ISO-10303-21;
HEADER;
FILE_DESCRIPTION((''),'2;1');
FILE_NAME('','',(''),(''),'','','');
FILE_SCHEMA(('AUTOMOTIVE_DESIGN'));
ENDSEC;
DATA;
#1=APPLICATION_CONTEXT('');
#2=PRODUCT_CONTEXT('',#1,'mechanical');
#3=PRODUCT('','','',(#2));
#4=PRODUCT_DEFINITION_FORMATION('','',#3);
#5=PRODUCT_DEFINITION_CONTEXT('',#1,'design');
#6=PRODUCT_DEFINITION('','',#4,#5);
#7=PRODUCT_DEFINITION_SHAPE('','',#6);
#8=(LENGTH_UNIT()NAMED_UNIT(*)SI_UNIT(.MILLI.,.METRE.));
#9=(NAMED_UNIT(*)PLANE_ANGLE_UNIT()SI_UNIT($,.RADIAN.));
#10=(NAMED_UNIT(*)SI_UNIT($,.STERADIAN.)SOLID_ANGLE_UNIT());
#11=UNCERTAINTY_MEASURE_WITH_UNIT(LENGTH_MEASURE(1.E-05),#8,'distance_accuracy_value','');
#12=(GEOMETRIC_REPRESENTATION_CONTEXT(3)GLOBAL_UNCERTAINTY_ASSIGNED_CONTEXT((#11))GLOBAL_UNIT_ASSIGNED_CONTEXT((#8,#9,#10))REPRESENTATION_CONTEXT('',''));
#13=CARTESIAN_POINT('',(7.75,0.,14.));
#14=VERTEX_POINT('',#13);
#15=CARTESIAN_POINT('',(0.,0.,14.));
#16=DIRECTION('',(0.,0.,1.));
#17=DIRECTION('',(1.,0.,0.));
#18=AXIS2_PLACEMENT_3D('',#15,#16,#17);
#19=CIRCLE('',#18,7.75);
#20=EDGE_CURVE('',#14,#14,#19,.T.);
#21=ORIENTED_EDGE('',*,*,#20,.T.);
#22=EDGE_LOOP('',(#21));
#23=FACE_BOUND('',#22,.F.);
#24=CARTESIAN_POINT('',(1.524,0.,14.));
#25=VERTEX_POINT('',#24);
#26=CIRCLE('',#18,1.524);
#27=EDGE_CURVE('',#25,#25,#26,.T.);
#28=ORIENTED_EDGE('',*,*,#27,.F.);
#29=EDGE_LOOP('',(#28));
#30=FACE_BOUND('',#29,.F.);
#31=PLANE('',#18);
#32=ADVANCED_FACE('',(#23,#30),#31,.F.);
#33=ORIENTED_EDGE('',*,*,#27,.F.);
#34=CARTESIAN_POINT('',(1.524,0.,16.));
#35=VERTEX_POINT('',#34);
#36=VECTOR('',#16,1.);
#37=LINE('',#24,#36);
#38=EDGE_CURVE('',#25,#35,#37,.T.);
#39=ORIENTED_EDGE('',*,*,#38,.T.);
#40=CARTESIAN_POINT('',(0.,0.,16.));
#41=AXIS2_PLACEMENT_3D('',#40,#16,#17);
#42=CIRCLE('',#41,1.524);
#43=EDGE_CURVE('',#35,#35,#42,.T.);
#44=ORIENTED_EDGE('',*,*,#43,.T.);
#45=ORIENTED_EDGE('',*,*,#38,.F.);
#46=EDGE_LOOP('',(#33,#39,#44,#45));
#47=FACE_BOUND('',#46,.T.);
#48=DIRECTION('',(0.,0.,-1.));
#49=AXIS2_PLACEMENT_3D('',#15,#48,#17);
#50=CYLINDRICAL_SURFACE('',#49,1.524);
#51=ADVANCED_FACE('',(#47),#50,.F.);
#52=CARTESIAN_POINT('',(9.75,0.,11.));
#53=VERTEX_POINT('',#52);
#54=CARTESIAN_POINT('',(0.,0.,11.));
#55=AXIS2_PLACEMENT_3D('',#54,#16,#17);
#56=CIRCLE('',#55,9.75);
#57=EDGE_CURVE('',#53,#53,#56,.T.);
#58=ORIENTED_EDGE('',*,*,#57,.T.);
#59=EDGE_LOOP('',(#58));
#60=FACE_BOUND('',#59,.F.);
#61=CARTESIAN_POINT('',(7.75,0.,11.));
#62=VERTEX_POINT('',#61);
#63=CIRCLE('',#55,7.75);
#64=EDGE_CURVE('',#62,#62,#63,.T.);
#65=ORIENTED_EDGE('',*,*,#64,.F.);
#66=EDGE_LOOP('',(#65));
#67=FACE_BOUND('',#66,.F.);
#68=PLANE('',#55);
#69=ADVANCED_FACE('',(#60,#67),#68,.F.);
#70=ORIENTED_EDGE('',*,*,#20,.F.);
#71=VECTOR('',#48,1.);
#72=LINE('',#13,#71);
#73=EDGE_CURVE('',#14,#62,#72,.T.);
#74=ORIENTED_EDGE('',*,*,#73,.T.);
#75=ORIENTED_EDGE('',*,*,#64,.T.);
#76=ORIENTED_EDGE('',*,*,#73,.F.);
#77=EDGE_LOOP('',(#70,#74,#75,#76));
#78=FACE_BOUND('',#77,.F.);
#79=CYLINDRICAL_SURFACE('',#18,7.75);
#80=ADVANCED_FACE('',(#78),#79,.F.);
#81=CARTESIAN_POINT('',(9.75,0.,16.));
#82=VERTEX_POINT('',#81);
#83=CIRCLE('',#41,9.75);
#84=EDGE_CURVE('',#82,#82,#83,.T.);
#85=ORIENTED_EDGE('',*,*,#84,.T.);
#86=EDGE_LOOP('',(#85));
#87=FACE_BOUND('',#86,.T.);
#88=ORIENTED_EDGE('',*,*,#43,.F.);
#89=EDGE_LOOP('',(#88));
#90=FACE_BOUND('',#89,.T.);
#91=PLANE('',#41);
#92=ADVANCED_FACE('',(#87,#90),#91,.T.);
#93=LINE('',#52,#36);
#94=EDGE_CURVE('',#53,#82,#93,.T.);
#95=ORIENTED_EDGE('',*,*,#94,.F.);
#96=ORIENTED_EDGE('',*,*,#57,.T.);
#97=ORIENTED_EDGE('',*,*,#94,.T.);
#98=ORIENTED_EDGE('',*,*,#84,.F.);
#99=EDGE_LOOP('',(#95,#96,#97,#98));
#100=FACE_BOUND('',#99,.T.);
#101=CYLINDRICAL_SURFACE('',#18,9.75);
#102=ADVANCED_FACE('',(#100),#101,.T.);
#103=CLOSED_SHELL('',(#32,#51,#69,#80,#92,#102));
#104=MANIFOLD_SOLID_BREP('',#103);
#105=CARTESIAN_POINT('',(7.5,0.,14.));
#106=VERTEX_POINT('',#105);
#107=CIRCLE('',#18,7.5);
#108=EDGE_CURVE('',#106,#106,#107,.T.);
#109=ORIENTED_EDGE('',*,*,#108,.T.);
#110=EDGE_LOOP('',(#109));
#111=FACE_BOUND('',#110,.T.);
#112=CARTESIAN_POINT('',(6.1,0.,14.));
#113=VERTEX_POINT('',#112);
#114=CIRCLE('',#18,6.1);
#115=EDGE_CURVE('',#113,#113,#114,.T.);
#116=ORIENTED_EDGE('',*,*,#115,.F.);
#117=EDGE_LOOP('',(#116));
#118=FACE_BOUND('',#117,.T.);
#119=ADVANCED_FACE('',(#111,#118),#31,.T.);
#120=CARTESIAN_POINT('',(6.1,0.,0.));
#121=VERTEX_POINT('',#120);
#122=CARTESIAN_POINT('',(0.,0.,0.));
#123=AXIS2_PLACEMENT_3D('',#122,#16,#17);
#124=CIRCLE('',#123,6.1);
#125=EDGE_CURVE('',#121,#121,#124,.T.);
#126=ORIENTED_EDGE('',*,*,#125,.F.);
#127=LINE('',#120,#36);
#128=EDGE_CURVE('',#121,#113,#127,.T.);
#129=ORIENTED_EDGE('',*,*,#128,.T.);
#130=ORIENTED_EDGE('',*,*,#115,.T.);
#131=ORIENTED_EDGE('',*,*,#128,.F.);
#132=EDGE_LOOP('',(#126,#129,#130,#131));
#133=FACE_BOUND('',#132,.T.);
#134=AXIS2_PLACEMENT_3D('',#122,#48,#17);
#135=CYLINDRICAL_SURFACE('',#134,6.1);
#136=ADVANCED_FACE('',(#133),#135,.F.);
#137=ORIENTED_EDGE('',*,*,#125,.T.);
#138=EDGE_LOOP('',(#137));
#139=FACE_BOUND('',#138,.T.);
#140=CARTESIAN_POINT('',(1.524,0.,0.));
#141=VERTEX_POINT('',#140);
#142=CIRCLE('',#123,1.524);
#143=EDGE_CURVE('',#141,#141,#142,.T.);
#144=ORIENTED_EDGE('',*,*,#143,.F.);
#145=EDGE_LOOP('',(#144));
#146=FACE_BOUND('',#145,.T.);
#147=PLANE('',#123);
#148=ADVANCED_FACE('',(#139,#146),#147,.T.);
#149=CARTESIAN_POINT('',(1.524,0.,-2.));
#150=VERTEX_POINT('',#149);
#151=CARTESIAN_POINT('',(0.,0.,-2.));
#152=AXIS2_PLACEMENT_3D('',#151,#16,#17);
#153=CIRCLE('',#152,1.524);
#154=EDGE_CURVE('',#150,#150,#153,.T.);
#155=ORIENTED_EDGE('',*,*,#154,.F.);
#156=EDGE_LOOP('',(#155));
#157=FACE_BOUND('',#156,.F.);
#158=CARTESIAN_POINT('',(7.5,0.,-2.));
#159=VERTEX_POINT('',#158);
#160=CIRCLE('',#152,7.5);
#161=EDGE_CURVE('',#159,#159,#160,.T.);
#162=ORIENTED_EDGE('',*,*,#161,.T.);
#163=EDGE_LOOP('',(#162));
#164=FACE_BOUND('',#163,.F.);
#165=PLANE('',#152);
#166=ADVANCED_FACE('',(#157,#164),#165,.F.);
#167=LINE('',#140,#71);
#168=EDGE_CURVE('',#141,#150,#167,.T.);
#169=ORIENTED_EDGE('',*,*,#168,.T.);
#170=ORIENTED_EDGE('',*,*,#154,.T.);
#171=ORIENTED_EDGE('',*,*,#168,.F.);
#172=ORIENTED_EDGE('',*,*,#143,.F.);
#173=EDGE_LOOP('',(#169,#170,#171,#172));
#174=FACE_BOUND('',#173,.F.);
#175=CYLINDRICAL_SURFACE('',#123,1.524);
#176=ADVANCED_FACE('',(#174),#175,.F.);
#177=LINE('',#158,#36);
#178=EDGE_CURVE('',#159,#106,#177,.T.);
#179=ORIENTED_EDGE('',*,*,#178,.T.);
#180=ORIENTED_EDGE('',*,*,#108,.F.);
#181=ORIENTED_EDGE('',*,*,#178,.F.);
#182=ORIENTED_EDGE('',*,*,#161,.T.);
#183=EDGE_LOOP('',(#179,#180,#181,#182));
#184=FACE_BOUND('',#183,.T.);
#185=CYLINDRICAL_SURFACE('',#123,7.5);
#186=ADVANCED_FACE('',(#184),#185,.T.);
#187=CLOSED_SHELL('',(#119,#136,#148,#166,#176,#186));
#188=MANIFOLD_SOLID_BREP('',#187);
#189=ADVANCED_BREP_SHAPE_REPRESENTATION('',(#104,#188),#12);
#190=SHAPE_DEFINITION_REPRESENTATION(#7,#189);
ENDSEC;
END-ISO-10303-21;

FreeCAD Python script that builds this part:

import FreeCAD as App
import Part
import Sketcher

V = App.Vector

doc = App.newDocument("Part")
body = doc.addObject("PartDesign::Body", "Body")

# Sketch on XY plane
sketch1 = body.newObject("Sketcher::SketchObject", "Sketch")
sketch1.AttachmentSupport = (doc.getObject("XY_Plane"), [""])
sketch1.MapMode = "FlatFace"
sketch1.addGeometry([
    Part.Circle(V(0, 0, 0), V(0, 0, 1), 7.5),
    Part.Circle(V(0, 0, 0), V(0, 0, 1), 6.1),
], False)
sketch1.addConstraint([
    Sketcher.Constraint("Coincident", 0, 3, -1, 1),
    Sketcher.Constraint("Coincident", 1, 3, -1, 1),
    Sketcher.Constraint("Diameter", 0, 15.0),
    Sketcher.Constraint("Diameter", 1, 12.2),
])
pad1 = body.newObject("PartDesign::Pad", "Pad")
pad1.Profile = sketch1
pad1.Length = 14

# Sketch on XY plane
sketch2 = body.newObject("Sketcher::SketchObject", "Sketch001")
sketch2.AttachmentSupport = (doc.getObject("XY_Plane"), [""])
sketch2.MapMode = "FlatFace"
sketch2.addGeometry([
    Part.Circle(V(0, 0, 0), V(0, 0, 1), 7.5),
    Part.Circle(V(0, 0, 0), V(0, 0, 1), 1.524),
], False)
sketch2.addConstraint([
    Sketcher.Constraint("Coincident", 0, 3, -1, 1),
    Sketcher.Constraint("Coincident", 1, 3, -1, 1),
    Sketcher.Constraint("Diameter", 0, 15.0),
    Sketcher.Constraint("Diameter", 1, 3.048),
])
pad2 = body.newObject("PartDesign::Pad", "Pad001")
pad2.Profile = sketch2
pad2.Length = 2
pad2.Reversed = True
body2 = doc.addObject("PartDesign::Body", "Body001")

# Sketch on XY plane
sketch3 = body2.newObject("Sketcher::SketchObject", "Sketch002")
sketch3.AttachmentSupport = (doc.getObject("XY_Plane001"), [""])
sketch3.MapMode = "FlatFace"
sketch3.AttachmentOffset = App.Placement(V(0, 0, 14), App.Rotation())
sketch3.addGeometry([
    Part.Circle(V(0, 0, 0), V(0, 0, 1), 9.75),
    Part.Circle(V(0, 0, 0), V(0, 0, 1), 1.524),
], False)
sketch3.addConstraint([
    Sketcher.Constraint("Coincident", 0, 3, -1, 1),
    Sketcher.Constraint("Coincident", 1, 3, -1, 1),
    Sketcher.Constraint("Diameter", 0, 19.5),
    Sketcher.Constraint("Diameter", 1, 3.048),
])
pad3 = body2.newObject("PartDesign::Pad", "Pad002")
pad3.Profile = sketch3
pad3.Length = 2

# Sketch on XY plane
sketch4 = body2.newObject("Sketcher::SketchObject", "Sketch003")
sketch4.AttachmentSupport = (doc.getObject("XY_Plane001"), [""])
sketch4.MapMode = "FlatFace"
sketch4.AttachmentOffset = App.Placement(V(0, 0, 14), App.Rotation())
sketch4.addGeometry([
    Part.Circle(V(0, 0, 0), V(0, 0, 1), 9.75),
    Part.Circle(V(0, 0, 0), V(0, 0, 1), 7.75),
], False)
sketch4.addConstraint([
    Sketcher.Constraint("Coincident", 0, 3, -1, 1),
    Sketcher.Constraint("Coincident", 1, 3, -1, 1),
    Sketcher.Constraint("Diameter", 0, 19.5),
    Sketcher.Constraint("Diameter", 1, 15.5),
])
pad4 = body2.newObject("PartDesign::Pad", "Pad003")
pad4.Profile = sketch4
pad4.Length = 3
pad4.Reversed = True

doc.recompute()
